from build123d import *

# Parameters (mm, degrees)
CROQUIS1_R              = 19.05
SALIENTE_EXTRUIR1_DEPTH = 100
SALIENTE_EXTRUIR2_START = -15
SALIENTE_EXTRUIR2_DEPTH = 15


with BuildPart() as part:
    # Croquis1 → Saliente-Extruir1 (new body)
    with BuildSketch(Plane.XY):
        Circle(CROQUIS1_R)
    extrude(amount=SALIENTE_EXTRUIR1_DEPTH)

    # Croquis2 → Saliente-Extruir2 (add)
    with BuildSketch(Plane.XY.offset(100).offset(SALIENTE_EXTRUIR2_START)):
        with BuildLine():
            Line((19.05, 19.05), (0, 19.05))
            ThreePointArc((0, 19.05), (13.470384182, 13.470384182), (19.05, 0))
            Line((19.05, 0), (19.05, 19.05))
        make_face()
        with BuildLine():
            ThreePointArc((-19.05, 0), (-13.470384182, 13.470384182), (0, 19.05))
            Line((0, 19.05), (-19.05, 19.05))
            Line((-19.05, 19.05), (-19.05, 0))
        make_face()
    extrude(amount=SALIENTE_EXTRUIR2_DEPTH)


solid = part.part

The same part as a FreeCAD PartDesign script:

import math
import FreeCAD as App
import Part
import Sketcher

doc = App.newDocument("Part")
body = doc.addObject("PartDesign::Body", "Body")

sketch1 = body.newObject("Sketcher::SketchObject", "Sketch")
sketch1.AttachmentSupport = (doc.getObject("XY_Plane"), [""])
sketch1.MapMode = "FlatFace"
sketch1.addGeometry(Part.Circle(App.Vector(0, 0, 0), App.Vector(0, 0, 1), 19.05), False)
sketch1.addConstraint([
    Sketcher.Constraint("Coincident", 0, 3, -1, 1),
    Sketcher.Constraint("Diameter", 0, 38.1),
])
pad1 = body.newObject("PartDesign::Pad", "Pad")
pad1.Profile = sketch1
pad1.Length = 100

sketch2 = body.newObject("Sketcher::SketchObject", "Sketch001")
sketch2.AttachmentSupport = (doc.getObject("XY_Plane"), [""])
sketch2.MapMode = "FlatFace"
sketch2.AttachmentOffset = App.Placement(App.Vector(0, 0, 85), App.Rotation())
sketch2.addGeometry([
    Part.LineSegment(App.Vector(19.05, 19.05, 0), App.Vector(0, 19.05, 0)),
    Part.ArcOfCircle(Part.Circle(App.Vector(0, 0, 0), App.Vector(0, 0, 1), 19.05), math.radians(0), math.radians(90)),
    Part.LineSegment(App.Vector(19.05, 0, 0), App.Vector(19.05, 19.05, 0)),
    Part.ArcOfCircle(Part.Circle(App.Vector(0, 0, 0), App.Vector(0, 0, 1), 19.05), math.radians(90), math.radians(180)),
    Part.LineSegment(App.Vector(0, 19.05, 0), App.Vector(-19.05, 19.05, 0)),
    Part.LineSegment(App.Vector(-19.05, 19.05, 0), App.Vector(-19.05, 0, 0)),
], False)
sketch2.addConstraint([
    Sketcher.Constraint("Tangent", 0, 2, 1, 2),
    Sketcher.Constraint("Tangent", 1, 1, 2, 1),
    Sketcher.Constraint("Coincident", 2, 2, 0, 1),
    Sketcher.Constraint("Tangent", 3, 1, 4, 1),
    Sketcher.Constraint("Coincident", 4, 2, 5, 1),
    Sketcher.Constraint("Tangent", 5, 2, 3, 2),
    Sketcher.Constraint("Horizontal", 0),
    Sketcher.Constraint("Vertical", 2),
    Sketcher.Constraint("Horizontal", 4),
    Sketcher.Constraint("Vertical", 5),
    Sketcher.Constraint("Coincident", 1, 3, -1, 1),
    Sketcher.Constraint("Coincident", 3, 3, -1, 1),
    Sketcher.Constraint("Equal", 1, 3),
    Sketcher.Constraint("Radius", 1, 19.05),
])
pad2 = body.newObject("PartDesign::Pad", "Pad001")
pad2.Profile = sketch2
pad2.Length = 15

doc.recompute()
